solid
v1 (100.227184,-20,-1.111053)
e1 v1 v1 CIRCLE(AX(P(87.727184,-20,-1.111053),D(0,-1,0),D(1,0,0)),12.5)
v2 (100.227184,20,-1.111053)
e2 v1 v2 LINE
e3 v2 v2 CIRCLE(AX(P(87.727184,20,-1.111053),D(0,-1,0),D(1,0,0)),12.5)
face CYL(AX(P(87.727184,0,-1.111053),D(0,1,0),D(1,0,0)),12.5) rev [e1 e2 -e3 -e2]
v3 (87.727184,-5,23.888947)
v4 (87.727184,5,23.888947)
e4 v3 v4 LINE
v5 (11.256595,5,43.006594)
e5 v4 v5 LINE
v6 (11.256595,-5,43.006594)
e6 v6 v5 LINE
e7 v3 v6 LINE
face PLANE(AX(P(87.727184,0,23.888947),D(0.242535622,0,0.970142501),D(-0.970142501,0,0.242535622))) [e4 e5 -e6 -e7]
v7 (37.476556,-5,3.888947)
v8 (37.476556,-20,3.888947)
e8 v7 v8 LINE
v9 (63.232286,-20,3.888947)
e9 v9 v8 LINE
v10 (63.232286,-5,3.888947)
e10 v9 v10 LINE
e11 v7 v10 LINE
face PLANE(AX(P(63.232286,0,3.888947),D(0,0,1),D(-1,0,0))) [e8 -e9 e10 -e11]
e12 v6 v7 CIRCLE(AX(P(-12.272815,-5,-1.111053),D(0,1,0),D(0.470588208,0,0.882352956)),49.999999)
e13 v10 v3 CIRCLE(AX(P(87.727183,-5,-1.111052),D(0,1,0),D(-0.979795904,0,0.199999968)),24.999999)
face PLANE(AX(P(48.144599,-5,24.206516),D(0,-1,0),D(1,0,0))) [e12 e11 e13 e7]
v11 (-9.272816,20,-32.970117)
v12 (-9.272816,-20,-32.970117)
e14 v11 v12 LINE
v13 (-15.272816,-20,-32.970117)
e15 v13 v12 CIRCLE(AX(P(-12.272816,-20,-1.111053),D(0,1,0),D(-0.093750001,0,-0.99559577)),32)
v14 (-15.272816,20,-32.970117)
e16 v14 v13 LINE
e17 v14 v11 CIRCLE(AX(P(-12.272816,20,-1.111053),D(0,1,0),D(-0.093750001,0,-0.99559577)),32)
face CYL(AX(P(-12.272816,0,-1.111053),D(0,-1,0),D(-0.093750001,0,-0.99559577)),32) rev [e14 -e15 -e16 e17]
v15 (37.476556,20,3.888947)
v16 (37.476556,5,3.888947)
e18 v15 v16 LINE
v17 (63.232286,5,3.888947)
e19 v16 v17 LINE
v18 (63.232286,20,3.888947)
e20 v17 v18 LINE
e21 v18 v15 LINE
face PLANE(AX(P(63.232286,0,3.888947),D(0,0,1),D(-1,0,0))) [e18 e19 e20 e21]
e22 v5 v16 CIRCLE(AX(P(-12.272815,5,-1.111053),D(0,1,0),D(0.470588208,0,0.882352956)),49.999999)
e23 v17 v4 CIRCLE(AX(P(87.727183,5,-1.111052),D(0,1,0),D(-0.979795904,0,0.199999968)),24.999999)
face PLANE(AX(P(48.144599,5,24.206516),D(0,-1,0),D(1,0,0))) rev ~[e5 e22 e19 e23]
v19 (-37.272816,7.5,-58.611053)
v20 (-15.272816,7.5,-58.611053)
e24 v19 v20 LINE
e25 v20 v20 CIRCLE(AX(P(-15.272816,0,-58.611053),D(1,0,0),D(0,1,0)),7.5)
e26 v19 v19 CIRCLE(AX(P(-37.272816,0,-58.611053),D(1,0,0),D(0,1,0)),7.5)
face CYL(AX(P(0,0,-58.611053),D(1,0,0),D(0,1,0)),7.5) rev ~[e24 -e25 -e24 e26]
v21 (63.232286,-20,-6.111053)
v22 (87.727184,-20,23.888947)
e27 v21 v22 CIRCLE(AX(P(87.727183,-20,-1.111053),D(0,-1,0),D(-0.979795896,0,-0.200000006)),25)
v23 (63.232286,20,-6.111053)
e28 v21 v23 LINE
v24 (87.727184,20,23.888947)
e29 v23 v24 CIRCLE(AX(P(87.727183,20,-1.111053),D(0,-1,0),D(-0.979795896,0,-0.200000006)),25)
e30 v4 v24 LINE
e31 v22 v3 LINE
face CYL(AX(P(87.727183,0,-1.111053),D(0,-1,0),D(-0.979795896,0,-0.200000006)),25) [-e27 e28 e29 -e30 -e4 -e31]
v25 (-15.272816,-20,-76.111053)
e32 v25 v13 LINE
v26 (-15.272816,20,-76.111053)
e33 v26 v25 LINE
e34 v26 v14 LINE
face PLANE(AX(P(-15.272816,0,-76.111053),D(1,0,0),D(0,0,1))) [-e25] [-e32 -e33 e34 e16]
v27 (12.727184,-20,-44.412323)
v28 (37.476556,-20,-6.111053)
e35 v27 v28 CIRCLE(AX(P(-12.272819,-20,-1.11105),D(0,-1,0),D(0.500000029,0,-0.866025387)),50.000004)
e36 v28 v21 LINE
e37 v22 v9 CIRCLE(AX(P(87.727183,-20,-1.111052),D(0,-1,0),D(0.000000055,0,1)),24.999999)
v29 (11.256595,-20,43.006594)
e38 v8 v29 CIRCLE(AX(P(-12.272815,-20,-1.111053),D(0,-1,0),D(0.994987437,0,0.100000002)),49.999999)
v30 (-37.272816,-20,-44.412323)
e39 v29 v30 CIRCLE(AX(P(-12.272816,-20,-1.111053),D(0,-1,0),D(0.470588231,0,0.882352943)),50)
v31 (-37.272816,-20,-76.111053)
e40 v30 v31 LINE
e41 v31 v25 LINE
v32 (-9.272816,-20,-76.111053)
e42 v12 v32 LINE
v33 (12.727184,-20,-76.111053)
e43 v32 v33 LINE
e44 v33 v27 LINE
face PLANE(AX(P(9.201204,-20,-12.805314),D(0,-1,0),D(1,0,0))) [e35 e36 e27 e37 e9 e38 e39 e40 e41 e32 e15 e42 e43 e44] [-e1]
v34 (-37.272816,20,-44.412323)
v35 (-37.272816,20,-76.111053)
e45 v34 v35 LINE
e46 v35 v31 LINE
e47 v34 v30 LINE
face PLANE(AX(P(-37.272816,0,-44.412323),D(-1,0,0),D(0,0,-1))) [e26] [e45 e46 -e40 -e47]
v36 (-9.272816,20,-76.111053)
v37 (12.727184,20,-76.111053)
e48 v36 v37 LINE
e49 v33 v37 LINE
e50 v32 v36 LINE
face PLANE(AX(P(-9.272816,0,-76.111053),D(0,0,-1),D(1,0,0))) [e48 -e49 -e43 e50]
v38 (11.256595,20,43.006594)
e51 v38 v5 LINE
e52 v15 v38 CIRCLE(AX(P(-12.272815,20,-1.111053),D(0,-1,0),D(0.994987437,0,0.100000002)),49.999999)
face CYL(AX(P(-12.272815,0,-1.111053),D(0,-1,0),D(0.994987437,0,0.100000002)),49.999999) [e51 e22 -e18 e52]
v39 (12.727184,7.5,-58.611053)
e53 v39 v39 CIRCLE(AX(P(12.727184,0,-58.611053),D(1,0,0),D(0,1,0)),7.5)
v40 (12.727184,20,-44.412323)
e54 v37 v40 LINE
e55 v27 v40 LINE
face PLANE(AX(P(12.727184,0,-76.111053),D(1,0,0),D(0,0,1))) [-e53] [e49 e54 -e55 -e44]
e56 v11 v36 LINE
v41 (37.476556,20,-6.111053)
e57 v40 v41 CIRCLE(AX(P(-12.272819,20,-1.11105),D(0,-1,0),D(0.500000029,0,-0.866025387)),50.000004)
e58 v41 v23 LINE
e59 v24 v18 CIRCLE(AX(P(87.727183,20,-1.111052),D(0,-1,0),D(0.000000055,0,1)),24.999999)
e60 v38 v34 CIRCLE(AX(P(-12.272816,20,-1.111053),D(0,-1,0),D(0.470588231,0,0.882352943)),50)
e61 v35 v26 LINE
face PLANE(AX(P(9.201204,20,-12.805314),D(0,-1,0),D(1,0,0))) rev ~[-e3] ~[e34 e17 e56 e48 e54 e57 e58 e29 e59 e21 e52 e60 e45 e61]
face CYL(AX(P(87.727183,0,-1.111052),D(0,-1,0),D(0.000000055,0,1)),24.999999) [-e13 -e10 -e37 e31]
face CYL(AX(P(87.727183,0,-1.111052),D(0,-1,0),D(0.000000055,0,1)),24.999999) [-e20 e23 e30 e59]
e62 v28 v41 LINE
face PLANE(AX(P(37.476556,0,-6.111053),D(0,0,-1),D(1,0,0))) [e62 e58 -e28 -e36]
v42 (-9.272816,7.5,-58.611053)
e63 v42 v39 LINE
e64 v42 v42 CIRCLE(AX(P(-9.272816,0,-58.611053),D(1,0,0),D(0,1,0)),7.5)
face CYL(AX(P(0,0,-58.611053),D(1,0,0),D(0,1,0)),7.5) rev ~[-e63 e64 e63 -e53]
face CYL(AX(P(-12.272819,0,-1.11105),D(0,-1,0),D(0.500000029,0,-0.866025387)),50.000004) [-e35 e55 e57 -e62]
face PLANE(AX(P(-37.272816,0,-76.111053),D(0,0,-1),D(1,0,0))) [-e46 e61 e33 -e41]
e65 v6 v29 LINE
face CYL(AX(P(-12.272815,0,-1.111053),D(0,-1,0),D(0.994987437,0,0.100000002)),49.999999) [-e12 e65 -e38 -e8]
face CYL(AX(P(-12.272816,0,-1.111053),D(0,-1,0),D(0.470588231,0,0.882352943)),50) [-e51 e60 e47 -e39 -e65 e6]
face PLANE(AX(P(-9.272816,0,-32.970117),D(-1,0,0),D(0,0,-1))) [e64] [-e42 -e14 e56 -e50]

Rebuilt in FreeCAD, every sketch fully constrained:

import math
import FreeCAD as App
import Part
import Sketcher
from FreeCAD import Vector
Q = App.Units.Quantity

doc = App.newDocument("Part")
params = doc.addObject("Spreadsheet::Sheet", "Params")
for row, (alias, value) in enumerate([
    ("sketch1_diameter", "25 mm"),
    ("sketch1_radius", "49.999999 mm"),
    ("sketch1_radius2", "32 mm"),
    ("sketch1_radius3", "25 mm"),
    ("sketch1_width", "22 mm"),
    ("pad1_length", "40 mm"),
    ("sketch2_radius", "49.999999 mm"),
    ("sketch2_radius2", "24.999999 mm"),
    ("sketch2_height", "5 mm"),
    ("pad2_length", "10 mm"),
    ("sketch3_diameter", "15 mm"),
    ("pocket1_length", "100 mm"),
], start=1):
    params.set(f"A{row}", alias)
    params.set(f"B{row}", "=" + value)
    params.setAlias(f"B{row}", alias)

body = doc.addObject("PartDesign::Body", "Body")

sketch1 = body.newObject("Sketcher::SketchObject", "Sketch")
sketch1.AttachmentSupport = (doc.getObject("XZ_Plane"), [""])
sketch1.MapMode = "FlatFace"
sketch1.addGeometry(Part.LineSegment(Vector(63, 4, 0), Vector(37, 4, 0)), False)
sketch1.addGeometry(Part.ArcOfCircle(Part.Circle(Vector(-12, -1, 0), Vector(0, 0, 1), 50), math.radians(6), math.radians(62)), False)
sketch1.addGeometry(Part.ArcOfCircle(Part.Circle(Vector(-12, -1, 0), Vector(0, 0, 1), 50), math.radians(62), math.radians(240)), False)
sketch1.addGeometry(Part.LineSegment(Vector(-37, -44, 0), Vector(-37, -76, 0)), False)
sketch1.addGeometry(Part.LineSegment(Vector(-37, -76, 0), Vector(-15, -76, 0)), False)
sketch1.addGeometry(Part.LineSegment(Vector(-15, -76, 0), Vector(-15, -33, 0)), False)
sketch1.addGeometry(Part.ArcOfCircle(Part.Circle(Vector(-12, -1, 0), Vector(0, 0, 1), 32), math.radians(-85), math.radians(265)), False)
sketch1.addGeometry(Part.LineSegment(Vector(-9, -33, 0), Vector(-9, -76, 0)), False)
sketch1.addGeometry(Part.LineSegment(Vector(-9, -76, 0), Vector(13, -76, 0)), False)
sketch1.addGeometry(Part.LineSegment(Vector(13, -76, 0), Vector(13, -44, 0)), False)
sketch1.addGeometry(Part.ArcOfCircle(Part.Circle(Vector(-12, -1, 0), Vector(0, 0, 1), 50), math.radians(-60), math.radians(-6)), False)
sketch1.addGeometry(Part.LineSegment(Vector(37, -6, 0), Vector(63, -6, 0)), False)
sketch1.addGeometry(Part.ArcOfCircle(Part.Circle(Vector(88, -1, 0), Vector(0, 0, 1), 25), math.radians(-168), math.radians(90)), False)
sketch1.addGeometry(Part.ArcOfCircle(Part.Circle(Vector(88, -1, 0), Vector(0, 0, 1), 25), math.radians(90), math.radians(168)), False)
sketch1.addGeometry(Part.Circle(Vector(88, -1, 0), Vector(0, 0, 1), 12), False)
sketch1.addConstraint(Sketcher.Constraint("Coincident", 0, 2, 1, 1))
sketch1.addConstraint(Sketcher.Constraint("Tangent", 1, 2, 2, 1))
sketch1.addConstraint(Sketcher.Constraint("Coincident", 2, 2, 3, 1))
sketch1.addConstraint(Sketcher.Constraint("Coincident", 3, 2, 4, 1))
sketch1.addConstraint(Sketcher.Constraint("Coincident", 4, 2, 5, 1))
sketch1.addConstraint(Sketcher.Constraint("Coincident", 5, 2, 6, 2))
sketch1.addConstraint(Sketcher.Constraint("Coincident", 6, 1, 7, 1))
sketch1.addConstraint(Sketcher.Constraint("Coincident", 7, 2, 8, 1))
sketch1.addConstraint(Sketcher.Constraint("Coincident", 8, 2, 9, 1))
sketch1.addConstraint(Sketcher.Constraint("Coincident", 9, 2, 10, 1))
sketch1.addConstraint(Sketcher.Constraint("Coincident", 10, 2, 11, 1))
sketch1.addConstraint(Sketcher.Constraint("Coincident", 11, 2, 12, 1))
sketch1.addConstraint(Sketcher.Constraint("Tangent", 12, 2, 13, 1))
sketch1.addConstraint(Sketcher.Constraint("Coincident", 13, 2, 0, 1))
sketch1.addConstraint(Sketcher.Constraint("Horizontal", 0))
sketch1.addConstraint(Sketcher.Constraint("Vertical", 3))
sketch1.addConstraint(Sketcher.Constraint("Horizontal", 4))
sketch1.addConstraint(Sketcher.Constraint("Vertical", 5))
sketch1.addConstraint(Sketcher.Constraint("Vertical", 7))
sketch1.addConstraint(Sketcher.Constraint("Horizontal", 8))
sketch1.addConstraint(Sketcher.Constraint("Vertical", 9))
sketch1.addConstraint(Sketcher.Constraint("Horizontal", 11))
sketch1.addConstraint(Sketcher.Constraint("Coincident", 6, 3, 1, 3))
sketch1.addConstraint(Sketcher.Constraint("Coincident", 10, 3, 1, 3))
sketch1.addConstraint(Sketcher.Constraint("Coincident", 14, 3, 12, 3))
sketch1.addConstraint(Sketcher.Constraint("Equal", 1, 2))
sketch1.addConstraint(Sketcher.Constraint("Equal", 12, 13))
sketch1.addConstraint(Sketcher.Constraint("Horizontal", 6, 3, 12, 3))
sketch1.addConstraint(Sketcher.Constraint("Horizontal", 5, 2, 6, 1))
sketch1.addConstraint(Sketcher.Constraint("Horizontal", 4, 2, 7, 2))
sketch1.addConstraint(Sketcher.Constraint("Horizontal", 2, 2, 9, 2))
sketch1.addConstraint(Sketcher.Constraint("Vertical", 0, 2, 10, 2))
sketch1.addConstraint(Sketcher.Constraint("Vertical", 14, 3, 12, 2))
sketch1.addConstraint(Sketcher.Constraint("Vertical", 11, 2, 13, 2))
sketch1.addConstraint(Sketcher.Constraint("Diameter", 14, Q("25 mm")))
sketch1.addConstraint(Sketcher.Constraint("Radius", 1, Q("49.999999 mm")))
sketch1.addConstraint(Sketcher.Constraint("Radius", 6, Q("32 mm")))
sketch1.addConstraint(Sketcher.Constraint("Radius", 12, Q("25 mm")))
sketch1.addConstraint(Sketcher.Constraint("DistanceX", 4, 1, 4, 2, Q("22 mm")))
sketch1.addConstraint(Sketcher.Constraint("DistanceX", 1, 3, 12, 3, Q("99.999998 mm")))
sketch1.addConstraint(Sketcher.Constraint("DistanceY", 1, 3, 0, 2, Q("5 mm")))
sketch1.addConstraint(Sketcher.Constraint("DistanceX", 2, 2, 2, 3, Q("25 mm")))
sketch1.addConstraint(Sketcher.Constraint("DistanceY", 3, 2, 2, 3, Q("75 mm")))
sketch1.addConstraint(Sketcher.Constraint("DistanceX", 10, 3, -1, 1, Q("12.272819 mm")))
sketch1.addConstraint(Sketcher.Constraint("DistanceY", 10, 3, -1, 1, Q("1.11105 mm")))
sketch1.addConstraint(Sketcher.Constraint("DistanceX", 1, 2, 0, 2, Q("26.219961 mm")))
sketch1.setExpression("Constraints[34]", "Params.sketch1_diameter")
sketch1.setExpression("Constraints[35]", "Params.sketch1_radius")
sketch1.setExpression("Constraints[36]", "Params.sketch1_radius2")
sketch1.setExpression("Constraints[37]", "Params.sketch1_radius3")
sketch1.setExpression("Constraints[38]", "Params.sketch1_width")
pad1 = body.newObject("PartDesign::Pad", "Pad")
pad1.Profile = sketch1
pad1.setExpression("Length", "Params.pad1_length")
pad1.Midplane = True

sketch2 = body.newObject("Sketcher::SketchObject", "Sketch001")
sketch2.AttachmentSupport = (doc.getObject("XZ_Plane"), [""])
sketch2.MapMode = "FlatFace"
sketch2.addGeometry(Part.ArcOfCircle(Part.Circle(Vector(-12, -1, 0), Vector(0, 0, 1), 50), math.radians(6), math.radians(62)), False)
sketch2.addGeometry(Part.LineSegment(Vector(37, 4, 0), Vector(63, 4, 0)), False)
sketch2.addGeometry(Part.ArcOfCircle(Part.Circle(Vector(88, -1, 0), Vector(0, 0, 1), 25), math.radians(90), math.radians(168)), False)
sketch2.addGeometry(Part.LineSegment(Vector(88, 24, 0), Vector(11, 43, 0)), False)
sketch2.addConstraint(Sketcher.Constraint("Coincident", 0, 1, 1, 1))
sketch2.addConstraint(Sketcher.Constraint("Coincident", 1, 2, 2, 2))
sketch2.addConstraint(Sketcher.Constraint("Coincident", 2, 1, 3, 1))
sketch2.addConstraint(Sketcher.Constraint("Coincident", 3, 2, 0, 2))
sketch2.addConstraint(Sketcher.Constraint("Horizontal", 1))
sketch2.addConstraint(Sketcher.Constraint("Horizontal", 0, 3, 2, 3))
sketch2.addConstraint(Sketcher.Constraint("Radius", 0, Q("49.999999 mm")))
sketch2.addConstraint(Sketcher.Constraint("Radius", 2, Q("24.999999 mm")))
sketch2.addConstraint(Sketcher.Constraint("DistanceY", 0, 3, 0, 1, Q("5 mm")))
sketch2.addConstraint(Sketcher.Constraint("DistanceX", 0, 3, 2, 1, Q("99.999999 mm")))
sketch2.addConstraint(Sketcher.Constraint("DistanceX", 1, 1, 1, 2, Q("25.75573 mm")))
sketch2.addConstraint(Sketcher.Constraint("Distance", 3, Q("78.824079 mm")))
sketch2.addConstraint(Sketcher.Constraint("DistanceX", 0, 3, -1, 1, Q("12.272815 mm")))
sketch2.addConstraint(Sketcher.Constraint("DistanceY", 0, 3, -1, 1, Q("1.111053 mm")))
sketch2.setExpression("Constraints[6]", "Params.sketch2_radius")
sketch2.setExpression("Constraints[7]", "Params.sketch2_radius2")
sketch2.setExpression("Constraints[8]", "Params.sketch2_height")
pad2 = body.newObject("PartDesign::Pad", "Pad001")
pad2.Profile = sketch2
pad2.setExpression("Length", "Params.pad2_length")
pad2.Midplane = True

sketch3 = body.newObject("Sketcher::SketchObject", "Sketch002")
sketch3.AttachmentSupport = (doc.getObject("YZ_Plane"), [""])
sketch3.MapMode = "FlatFace"
sketch3.addGeometry(Part.Circle(Vector(0, -59, 0), Vector(0, 0, 1), 8), False)
sketch3.addConstraint(Sketcher.Constraint("PointOnObject", 0, 3, -2))
sketch3.addConstraint(Sketcher.Constraint("Diameter", 0, Q("15 mm")))
sketch3.addConstraint(Sketcher.Constraint("DistanceY", 0, 3, -1, 1, Q("58.611053 mm")))
sketch3.setExpression("Constraints[1]", "Params.sketch3_diameter")
pocket1 = body.newObject("PartDesign::Pocket", "Pocket")
pocket1.Profile = sketch3
pocket1.setExpression("Length", "Params.pocket1_length")
pocket1.Midplane = True

doc.recompute()
